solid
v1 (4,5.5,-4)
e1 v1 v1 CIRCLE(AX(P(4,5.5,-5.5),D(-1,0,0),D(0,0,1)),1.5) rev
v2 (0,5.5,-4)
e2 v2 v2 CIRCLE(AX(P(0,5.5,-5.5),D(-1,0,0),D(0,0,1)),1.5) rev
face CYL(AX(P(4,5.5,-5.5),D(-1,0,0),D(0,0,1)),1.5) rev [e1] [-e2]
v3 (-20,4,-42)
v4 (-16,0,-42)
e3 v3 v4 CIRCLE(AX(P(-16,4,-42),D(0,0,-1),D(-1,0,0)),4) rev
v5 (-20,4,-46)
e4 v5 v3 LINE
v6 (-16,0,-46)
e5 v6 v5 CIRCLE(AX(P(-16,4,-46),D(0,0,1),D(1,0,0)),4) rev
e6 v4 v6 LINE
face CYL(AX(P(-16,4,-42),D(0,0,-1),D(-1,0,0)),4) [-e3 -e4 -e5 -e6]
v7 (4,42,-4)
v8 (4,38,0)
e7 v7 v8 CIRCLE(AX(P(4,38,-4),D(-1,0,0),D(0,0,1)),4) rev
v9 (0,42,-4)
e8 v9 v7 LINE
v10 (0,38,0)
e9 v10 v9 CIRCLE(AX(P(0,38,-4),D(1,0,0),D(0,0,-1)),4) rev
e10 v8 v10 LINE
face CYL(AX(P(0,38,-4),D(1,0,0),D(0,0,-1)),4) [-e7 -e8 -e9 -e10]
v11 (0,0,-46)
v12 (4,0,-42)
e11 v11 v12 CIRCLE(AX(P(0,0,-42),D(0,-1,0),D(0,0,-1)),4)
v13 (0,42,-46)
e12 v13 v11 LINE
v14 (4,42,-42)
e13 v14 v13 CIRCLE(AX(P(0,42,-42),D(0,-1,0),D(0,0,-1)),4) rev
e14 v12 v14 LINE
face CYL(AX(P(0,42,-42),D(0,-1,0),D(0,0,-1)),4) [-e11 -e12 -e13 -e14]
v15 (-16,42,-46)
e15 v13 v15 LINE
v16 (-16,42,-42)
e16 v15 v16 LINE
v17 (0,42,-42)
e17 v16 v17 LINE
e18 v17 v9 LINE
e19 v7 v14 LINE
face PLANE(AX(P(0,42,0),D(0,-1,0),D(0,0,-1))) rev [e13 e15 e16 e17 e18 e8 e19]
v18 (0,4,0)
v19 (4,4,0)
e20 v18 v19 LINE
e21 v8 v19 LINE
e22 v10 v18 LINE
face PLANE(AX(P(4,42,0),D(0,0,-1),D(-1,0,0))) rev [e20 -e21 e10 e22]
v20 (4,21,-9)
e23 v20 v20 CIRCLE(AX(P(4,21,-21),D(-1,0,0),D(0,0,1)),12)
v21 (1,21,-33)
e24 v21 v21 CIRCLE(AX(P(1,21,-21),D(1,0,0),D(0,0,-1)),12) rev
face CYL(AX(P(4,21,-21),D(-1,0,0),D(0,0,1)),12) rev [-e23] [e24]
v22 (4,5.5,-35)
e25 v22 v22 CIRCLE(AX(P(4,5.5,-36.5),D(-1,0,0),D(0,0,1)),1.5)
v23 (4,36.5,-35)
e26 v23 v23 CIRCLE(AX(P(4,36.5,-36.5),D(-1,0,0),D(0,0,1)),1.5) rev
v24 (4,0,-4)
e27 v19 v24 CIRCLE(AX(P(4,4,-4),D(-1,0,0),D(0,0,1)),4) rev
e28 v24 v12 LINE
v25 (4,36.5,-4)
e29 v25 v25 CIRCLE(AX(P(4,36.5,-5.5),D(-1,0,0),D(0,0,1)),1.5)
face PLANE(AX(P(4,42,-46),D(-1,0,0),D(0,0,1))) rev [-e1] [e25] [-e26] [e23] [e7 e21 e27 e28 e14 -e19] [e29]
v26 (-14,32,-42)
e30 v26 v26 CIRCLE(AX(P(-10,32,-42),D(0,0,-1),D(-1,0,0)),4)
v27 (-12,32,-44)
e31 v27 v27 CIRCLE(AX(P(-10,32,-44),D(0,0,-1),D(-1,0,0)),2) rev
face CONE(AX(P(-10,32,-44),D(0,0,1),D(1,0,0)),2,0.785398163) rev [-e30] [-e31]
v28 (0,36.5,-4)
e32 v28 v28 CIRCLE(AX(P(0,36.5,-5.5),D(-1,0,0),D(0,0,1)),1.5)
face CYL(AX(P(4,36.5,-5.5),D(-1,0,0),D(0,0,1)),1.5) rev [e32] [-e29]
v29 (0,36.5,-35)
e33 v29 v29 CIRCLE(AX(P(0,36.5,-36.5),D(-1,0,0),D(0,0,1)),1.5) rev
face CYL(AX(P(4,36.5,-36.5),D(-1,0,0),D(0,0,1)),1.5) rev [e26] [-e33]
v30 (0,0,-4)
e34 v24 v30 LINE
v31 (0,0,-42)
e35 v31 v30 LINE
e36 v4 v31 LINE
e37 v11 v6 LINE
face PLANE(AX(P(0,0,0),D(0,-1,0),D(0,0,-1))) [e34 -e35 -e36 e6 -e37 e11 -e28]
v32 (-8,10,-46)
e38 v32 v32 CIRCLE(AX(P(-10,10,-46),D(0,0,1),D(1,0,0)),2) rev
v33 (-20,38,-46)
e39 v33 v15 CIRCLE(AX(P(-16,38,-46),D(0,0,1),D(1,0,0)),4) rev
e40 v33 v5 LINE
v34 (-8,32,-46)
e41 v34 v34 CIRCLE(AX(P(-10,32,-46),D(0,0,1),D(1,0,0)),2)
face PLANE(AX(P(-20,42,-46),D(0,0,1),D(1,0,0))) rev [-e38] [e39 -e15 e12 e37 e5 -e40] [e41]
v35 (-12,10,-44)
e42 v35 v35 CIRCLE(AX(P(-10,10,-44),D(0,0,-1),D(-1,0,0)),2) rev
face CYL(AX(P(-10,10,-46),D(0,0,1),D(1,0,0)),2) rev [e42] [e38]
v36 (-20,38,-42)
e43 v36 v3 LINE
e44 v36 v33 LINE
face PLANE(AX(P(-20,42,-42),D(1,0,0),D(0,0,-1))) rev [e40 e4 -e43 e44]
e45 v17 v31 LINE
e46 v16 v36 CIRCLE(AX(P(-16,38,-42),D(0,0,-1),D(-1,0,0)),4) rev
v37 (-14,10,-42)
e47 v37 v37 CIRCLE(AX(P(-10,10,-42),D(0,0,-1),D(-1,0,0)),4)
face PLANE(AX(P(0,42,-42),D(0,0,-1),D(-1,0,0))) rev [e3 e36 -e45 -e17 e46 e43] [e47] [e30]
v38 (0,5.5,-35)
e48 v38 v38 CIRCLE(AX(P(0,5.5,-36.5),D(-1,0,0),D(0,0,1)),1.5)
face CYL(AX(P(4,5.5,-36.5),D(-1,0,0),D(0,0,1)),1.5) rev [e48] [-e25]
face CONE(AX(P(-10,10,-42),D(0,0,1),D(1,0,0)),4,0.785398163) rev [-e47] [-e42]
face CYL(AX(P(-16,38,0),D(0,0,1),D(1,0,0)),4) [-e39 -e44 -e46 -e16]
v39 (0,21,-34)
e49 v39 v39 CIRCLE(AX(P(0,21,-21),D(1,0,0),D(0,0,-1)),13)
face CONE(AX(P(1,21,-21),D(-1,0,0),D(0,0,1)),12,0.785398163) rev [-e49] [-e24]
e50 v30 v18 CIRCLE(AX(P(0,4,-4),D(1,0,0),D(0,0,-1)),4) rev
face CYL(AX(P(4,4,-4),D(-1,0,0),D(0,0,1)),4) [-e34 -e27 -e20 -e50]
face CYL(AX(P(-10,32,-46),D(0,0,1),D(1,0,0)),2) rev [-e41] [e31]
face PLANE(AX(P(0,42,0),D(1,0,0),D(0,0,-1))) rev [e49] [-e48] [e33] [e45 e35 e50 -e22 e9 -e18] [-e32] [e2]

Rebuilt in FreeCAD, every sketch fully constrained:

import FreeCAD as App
import Part
import Sketcher


def edges_at(feature, points):
    """Names of the edges that pass closest to the given points."""
    edges = feature.Shape.Edges
    near = lambda p: min(range(len(edges)), key=lambda i: edges[i].distToShape(Part.Vertex(*p))[0])
    return sorted({f"Edge{near(p) + 1}" for p in points})


def add_polygon(sketch, points):
    """Adds a closed chain of lines whose ends are joined by coincident constraints."""
    first, n = sketch.GeometryCount, len(points)
    for a, b in zip(points, points[1:] + points[:1]):
        sketch.addGeometry(Part.LineSegment(App.Vector(*a, 0), App.Vector(*b, 0)), False)
    for i in range(n):
        sketch.addConstraint(Sketcher.Constraint("Coincident", first + i, 2, first + (i + 1) % n, 1))

doc = App.newDocument("Part")
body = doc.addObject("PartDesign::Body", "Body")

# Sketch on XZ plane
sketch1 = body.newObject("Sketcher::SketchObject", "Sketch")
sketch1.AttachmentSupport = (doc.getObject("XZ_Plane"), [""])
sketch1.MapMode = "FlatFace"
add_polygon(sketch1, [(0, -42), (0, 0), (4, 0), (4, -46), (-20, -46), (-20, -42)])  # lines 0-5
sketch1.addConstraint([
    Sketcher.Constraint("Vertical", 0),
    Sketcher.Constraint("Horizontal", 1),
    Sketcher.Constraint("Vertical", 2),
    Sketcher.Constraint("Horizontal", 3),
    Sketcher.Constraint("Vertical", 4),
    Sketcher.Constraint("Horizontal", 5),
    Sketcher.Constraint("Coincident", 0, 2, -1, 1),
    Sketcher.Constraint("Equal", 1, 4),
    Sketcher.Constraint("DistanceX", 1, 1, 1, 2, 4.0),
    Sketcher.Constraint("DistanceX", 3, 2, 3, 1, 24.0),
    Sketcher.Constraint("DistanceY", 0, 1, 0, 2, 42.0),
])
pad1 = body.newObject("PartDesign::Pad", "Pad")
pad1.Profile = sketch1
pad1.Length = 42
pad1.Reversed = True

# Sketch on YZ plane
sketch2 = body.newObject("Sketcher::SketchObject", "Sketch001")
sketch2.AttachmentSupport = (doc.getObject("YZ_Plane"), [""])
sketch2.MapMode = "FlatFace"
sketch2.addGeometry([
    Part.Circle(App.Vector(21, -21, 0), App.Vector(0, 0, 1), 12),  # 0
    Part.Circle(App.Vector(36.5, -36.5, 0), App.Vector(0, 0, 1), 1.5),  # 1
    Part.Circle(App.Vector(36.5, -5.5, 0), App.Vector(0, 0, 1), 1.5),  # 2
    Part.Circle(App.Vector(5.5, -5.5, 0), App.Vector(0, 0, 1), 1.5),  # 3
    Part.Circle(App.Vector(5.5, -36.5, 0), App.Vector(0, 0, 1), 1.5),  # 4
], False)
sketch2.addConstraint([
    Sketcher.Constraint("Equal", 1, 2),
    Sketcher.Constraint("Equal", 2, 3),
    Sketcher.Constraint("Equal", 3, 4),
    Sketcher.Constraint("Horizontal", 2, 3, 3, 3),
    Sketcher.Constraint("Horizontal", 1, 3, 4, 3),
    Sketcher.Constraint("Vertical", 1, 3, 2, 3),
    Sketcher.Constraint("Vertical", 3, 3, 4, 3),
    Sketcher.Constraint("Diameter", 0, 24.0),
    Sketcher.Constraint("Diameter", 1, 3.0),
    Sketcher.Constraint("DistanceX", -1, 1, 0, 3, 21.0),
    Sketcher.Constraint("DistanceY", 0, 3, -1, 1, 21.0),
    Sketcher.Constraint("DistanceY", 1, 3, 2, 3, 31.0),
    Sketcher.Constraint("DistanceX", 3, 3, 2, 3, 31.0),
    Sketcher.Constraint("DistanceX", -1, 1, 1, 3, 36.5),
    Sketcher.Constraint("DistanceY", 1, 3, -1, 1, 36.5),
])
pocket1 = body.newObject("PartDesign::Pocket", "Pocket")
pocket1.Profile = sketch2
pocket1.Type = "ThroughAll"
pocket1.Reversed = True

# Sketch on XY plane
sketch3 = body.newObject("Sketcher::SketchObject", "Sketch002")
sketch3.AttachmentSupport = (doc.getObject("XY_Plane"), [""])
sketch3.MapMode = "FlatFace"
sketch3.AttachmentOffset = App.Placement(App.Vector(0, 0, -42), App.Rotation())
sketch3.addGeometry([
    Part.Circle(App.Vector(-10, 32, 0), App.Vector(0, 0, 1), 2),
    Part.Circle(App.Vector(-10, 10, 0), App.Vector(0, 0, 1), 2),
], False)
sketch3.addConstraint([
    Sketcher.Constraint("Equal", 0, 1),
    Sketcher.Constraint("Vertical", 0, 3, 1, 3),
    Sketcher.Constraint("Diameter", 0, 4.0),
    Sketcher.Constraint("DistanceX", 0, 3, -1, 1, 10.0),
    Sketcher.Constraint("DistanceY", -1, 1, 0, 3, 32.0),
    Sketcher.Constraint("DistanceY", -1, 1, 1, 3, 10.0),
])
pocket2 = body.newObject("PartDesign::Pocket", "Pocket001")
pocket2.Profile = sketch3
pocket2.Type = "ThroughAll"
doc.recompute()

chamfer = body.newObject("PartDesign::Chamfer", "Chamfer")
chamfer.Base = (pocket2, edges_at(pocket2, [(-12, 32, -42), (-12, 10, -42)]))
chamfer.Size = 2
doc.recompute()

chamfer2 = body.newObject("PartDesign::Chamfer", "Chamfer001")
chamfer2.Base = (chamfer, edges_at(chamfer, [(0, 21, -33)]))
chamfer2.Size = 1
doc.recompute()

fillet = body.newObject("PartDesign::Fillet", "Fillet")
fillet.Base = (chamfer2, edges_at(chamfer2, [
    (4, 21, -46),
    (-20, 42, -44),
    (2, 42, 0),
    (-20, 0, -44),
    (2, 0, 0),
]))
fillet.Radius = 4

doc.recompute()
